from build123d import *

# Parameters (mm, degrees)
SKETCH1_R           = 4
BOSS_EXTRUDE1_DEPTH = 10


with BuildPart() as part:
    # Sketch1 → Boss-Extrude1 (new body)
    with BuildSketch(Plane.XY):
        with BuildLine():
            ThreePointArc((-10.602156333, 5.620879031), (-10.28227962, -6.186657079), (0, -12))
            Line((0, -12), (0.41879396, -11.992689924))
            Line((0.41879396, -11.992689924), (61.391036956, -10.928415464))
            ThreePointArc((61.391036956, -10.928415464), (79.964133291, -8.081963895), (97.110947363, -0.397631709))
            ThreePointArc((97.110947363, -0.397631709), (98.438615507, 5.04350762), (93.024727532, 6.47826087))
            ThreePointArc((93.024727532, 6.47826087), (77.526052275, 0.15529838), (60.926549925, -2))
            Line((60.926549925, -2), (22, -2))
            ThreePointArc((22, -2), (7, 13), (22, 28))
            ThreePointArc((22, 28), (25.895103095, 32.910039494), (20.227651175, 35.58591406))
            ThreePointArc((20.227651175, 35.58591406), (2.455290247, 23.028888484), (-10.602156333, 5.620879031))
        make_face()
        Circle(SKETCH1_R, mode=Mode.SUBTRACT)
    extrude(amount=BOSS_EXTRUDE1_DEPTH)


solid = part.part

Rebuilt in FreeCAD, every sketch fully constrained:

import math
import FreeCAD as App
import Part
import Sketcher
Q = App.Units.Quantity

doc = App.newDocument("Part")
body = doc.addObject("PartDesign::Body", "Body")

# Sketch on XY plane
sketch1 = body.newObject("Sketcher::SketchObject", "Sketch")
sketch1.AttachmentSupport = (doc.getObject("XY_Plane"), [""])
sketch1.MapMode = "FlatFace"
sketch1.addGeometry(Part.ArcOfCircle(Part.Circle(App.Vector(0, 0, 0), App.Vector(0, 0, 1), 12), math.radians(152.069086), math.radians(270)), False)
sketch1.addGeometry(Part.LineSegment(App.Vector(0, -12, 0), App.Vector(0.418794, -11.99269, 0)), False)
sketch1.addGeometry(Part.LineSegment(App.Vector(0.418794, -11.99269, 0), App.Vector(61.391037, -10.928415, 0)), False)
sketch1.addGeometry(Part.ArcOfCircle(Part.Circle(App.Vector(60.169369, 59.060923, 0), App.Vector(0, 0, 1), 70), math.radians(-89), math.radians(-58.147331)), False)
sketch1.addGeometry(Part.ArcOfCircle(Part.Circle(App.Vector(95, 3, 0), App.Vector(0, 0, 1), 4), math.radians(-58.147331), math.radians(119.591846)), False)
sketch1.addGeometry(Part.ArcOfCircle(Part.Circle(App.Vector(60.92655, 63, 0), App.Vector(0, 0, 1), 65), math.radians(-90), math.radians(-60.408154)), False)
sketch1.addGeometry(Part.LineSegment(App.Vector(60.92655, -2, 0), App.Vector(22, -2, 0)), False)
sketch1.addGeometry(Part.ArcOfCircle(Part.Circle(App.Vector(22, 13, 0), App.Vector(0, 0, 1), 15), math.radians(90), math.radians(270)), False)
sketch1.addGeometry(Part.ArcOfCircle(Part.Circle(App.Vector(22, 32, 0), App.Vector(0, 0, 1), 4), math.radians(-90), math.radians(116.301024)), False)
sketch1.addGeometry(Part.ArcOfCircle(Part.Circle(App.Vector(51.243756, -27.167582, 0), App.Vector(0, 0, 1), 70), math.radians(116.301024), math.radians(152.069086)), False)
sketch1.addGeometry(Part.Circle(App.Vector(0, 0, 0), App.Vector(0, 0, 1), 4), False)
sketch1.addConstraint(Sketcher.Constraint("Coincident", 0, 2, 1, 1))
sketch1.addConstraint(Sketcher.Constraint("Coincident", 1, 2, 2, 1))
sketch1.addConstraint(Sketcher.Constraint("Tangent", 2, 2, 3, 1))
sketch1.addConstraint(Sketcher.Constraint("Tangent", 3, 2, 4, 1))
sketch1.addConstraint(Sketcher.Constraint("Tangent", 4, 2, 5, 2))
sketch1.addConstraint(Sketcher.Constraint("Tangent", 5, 1, 6, 1))
sketch1.addConstraint(Sketcher.Constraint("Tangent", 6, 2, 7, 2))
sketch1.addConstraint(Sketcher.Constraint("Tangent", 7, 1, 8, 1))
sketch1.addConstraint(Sketcher.Constraint("Tangent", 8, 2, 9, 1))
sketch1.addConstraint(Sketcher.Constraint("Tangent", 9, 2, 0, 1))
sketch1.addConstraint(Sketcher.Constraint("Horizontal", 6))
sketch1.addConstraint(Sketcher.Constraint("Coincident", 0, 3, -1, 1))
sketch1.addConstraint(Sketcher.Constraint("Coincident", 10, 3, -1, 1))
sketch1.addConstraint(Sketcher.Constraint("Equal", 4, 8))
sketch1.addConstraint(Sketcher.Constraint("Equal", 3, 9))
sketch1.addConstraint(Sketcher.Constraint("Equal", 8, 10))
sketch1.addConstraint(Sketcher.Constraint("PointOnObject", 0, 2, -2))
sketch1.addConstraint(Sketcher.Constraint("Parallel", 1, 2))
sketch1.addConstraint(Sketcher.Constraint("Vertical", 7, 3, 8, 3))
sketch1.addConstraint(Sketcher.Constraint("Diameter", 10, 8.0))
sketch1.addConstraint(Sketcher.Constraint("Radius", 0, 12.0))
sketch1.addConstraint(Sketcher.Constraint("Radius", 3, 70.0))
sketch1.addConstraint(Sketcher.Constraint("Radius", 5, 65.0))
sketch1.addConstraint(Sketcher.Constraint("Radius", 7, 15.0))
sketch1.addConstraint(Sketcher.Constraint("Angle", 2, Q("1 deg")))
sketch1.addConstraint(Sketcher.Constraint("DistanceX", -1, 1, 4, 3, 95.0))
sketch1.addConstraint(Sketcher.Constraint("DistanceY", -1, 1, 4, 3, 3.0))
sketch1.addConstraint(Sketcher.Constraint("DistanceY", -1, 1, 5, 3, 63.0))
sketch1.addConstraint(Sketcher.Constraint("DistanceX", -1, 1, 7, 3, 22.0))
sketch1.addConstraint(Sketcher.Constraint("Distance", 2, 60.981531))
pad1 = body.newObject("PartDesign::Pad", "Pad")
pad1.Profile = sketch1
pad1.Length = 10

doc.recompute()
